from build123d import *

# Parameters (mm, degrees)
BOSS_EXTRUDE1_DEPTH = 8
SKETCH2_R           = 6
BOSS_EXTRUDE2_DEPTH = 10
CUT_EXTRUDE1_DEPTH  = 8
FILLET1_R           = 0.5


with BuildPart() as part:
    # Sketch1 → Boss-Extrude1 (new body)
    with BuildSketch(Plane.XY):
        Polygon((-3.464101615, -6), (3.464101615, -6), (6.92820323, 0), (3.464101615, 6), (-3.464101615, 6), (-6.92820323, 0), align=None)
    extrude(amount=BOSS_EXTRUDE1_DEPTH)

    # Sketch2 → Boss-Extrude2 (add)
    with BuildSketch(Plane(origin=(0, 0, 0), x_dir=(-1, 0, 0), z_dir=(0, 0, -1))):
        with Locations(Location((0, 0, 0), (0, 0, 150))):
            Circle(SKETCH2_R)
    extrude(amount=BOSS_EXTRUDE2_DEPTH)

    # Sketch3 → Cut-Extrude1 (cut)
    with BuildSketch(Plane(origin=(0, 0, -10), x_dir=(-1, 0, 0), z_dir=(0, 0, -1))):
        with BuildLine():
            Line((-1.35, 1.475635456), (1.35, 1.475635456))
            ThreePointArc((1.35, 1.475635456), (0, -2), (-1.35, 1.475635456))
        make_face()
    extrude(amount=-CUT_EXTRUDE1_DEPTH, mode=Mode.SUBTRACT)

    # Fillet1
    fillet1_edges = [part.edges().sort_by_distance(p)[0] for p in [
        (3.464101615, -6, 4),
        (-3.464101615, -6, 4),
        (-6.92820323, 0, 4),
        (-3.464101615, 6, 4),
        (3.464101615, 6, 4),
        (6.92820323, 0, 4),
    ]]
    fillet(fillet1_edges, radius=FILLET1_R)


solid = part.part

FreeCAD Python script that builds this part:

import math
import FreeCAD as App
import Part
import Sketcher
from FreeCAD import Vector
Q = App.Units.Quantity


def edges_at(feature, points):
    """Names of the edges that pass closest to the given points."""
    edges = feature.Shape.Edges
    near = lambda p: min(range(len(edges)), key=lambda i: edges[i].distToShape(Part.Vertex(*p))[0])
    return sorted({f"Edge{near(p) + 1}" for p in points})


def add_polygon(sketch, points):
    """Adds a closed chain of lines whose ends are joined by coincident constraints."""
    first, n = sketch.GeometryCount, len(points)
    for a, b in zip(points, points[1:] + points[:1]):
        sketch.addGeometry(Part.LineSegment(App.Vector(*a, 0), App.Vector(*b, 0)), False)
    for i in range(n):
        sketch.addConstraint(Sketcher.Constraint("Coincident", first + i, 2, first + (i + 1) % n, 1))

doc = App.newDocument("Part")
body = doc.addObject("PartDesign::Body", "Body")

# Sketch on XY plane
sketch1 = doc.addObject("Sketcher::SketchObject", "Sketch")
body.addObject(sketch1)
sketch1.AttachmentSupport = (doc.XY_Plane, [""])
sketch1.MapMode = "FlatFace"
add_polygon(sketch1, [(-3, -6), (3, -6), (7, 0), (3, 6), (-3, 6), (-7, 0)])  # lines 0-5
sketch1.addConstraint(Sketcher.Constraint("Horizontal", 0))
sketch1.addConstraint(Sketcher.Constraint("Horizontal", 3))
sketch1.addConstraint(Sketcher.Constraint("Symmetric", 0, 2, 3, 2, -1, 1))
sketch1.addConstraint(Sketcher.Constraint("Symmetric", 1, 2, 4, 2, -1, 1))
sketch1.addConstraint(Sketcher.Constraint("PointOnObject", 1, 2, -1))
sketch1.addConstraint(Sketcher.Constraint("Parallel", 2, 5))
sketch1.addConstraint(Sketcher.Constraint("Vertical", 0, 2, 2, 2))
sketch1.addConstraint(Sketcher.Constraint("Angle", 1, Q("60 deg")))
sketch1.addConstraint(Sketcher.Constraint("DistanceY", 0, 2, -1, 1, 6.0))
sketch1.addConstraint(Sketcher.Constraint("DistanceX", -1, 1, 0, 2, 3.464102))
pad1 = doc.addObject("PartDesign::Pad", "Pad")
body.addObject(pad1)
pad1.Profile = sketch1
pad1.Length = 8

# Sketch on XY plane
sketch2 = doc.addObject("Sketcher::SketchObject", "Sketch001")
body.addObject(sketch2)
sketch2.AttachmentSupport = (doc.XY_Plane, [""])
sketch2.MapMode = "FlatFace"
sketch2.addGeometry(Part.Circle(Vector(0, 0, 0), Vector(0, 0, 1), 6), False)
sketch2.addConstraint(Sketcher.Constraint("Coincident", 0, 3, -1, 1))
sketch2.addConstraint(Sketcher.Constraint("Diameter", 0, 12.0))
pad2 = doc.addObject("PartDesign::Pad", "Pad001")
body.addObject(pad2)
pad2.Profile = sketch2
pad2.Length = 10
pad2.Reversed = True

# Sketch on XY plane
sketch3 = doc.addObject("Sketcher::SketchObject", "Sketch002")
body.addObject(sketch3)
sketch3.AttachmentSupport = (doc.XY_Plane, [""])
sketch3.MapMode = "FlatFace"
sketch3.AttachmentOffset = App.Placement(Vector(0, 0, -10), App.Rotation())
sketch3.addGeometry(Part.LineSegment(Vector(-1.4, 1.5, 0), Vector(1.4, 1.5, 0)), False)
sketch3.addGeometry(Part.ArcOfCircle(Part.Circle(Vector(0, 0, 0), Vector(0, 0, 1), 2), math.radians(132), math.radians(408)), False)
sketch3.addConstraint(Sketcher.Constraint("Coincident", 0, 1, 1, 1))
sketch3.addConstraint(Sketcher.Constraint("Coincident", 1, 2, 0, 2))
sketch3.addConstraint(Sketcher.Constraint("Horizontal", 0))
sketch3.addConstraint(Sketcher.Constraint("Coincident", 1, 3, -1, 1))
sketch3.addConstraint(Sketcher.Constraint("Radius", 1, 2.0))
sketch3.addConstraint(Sketcher.Constraint("DistanceX", 0, 1, 0, 2, 2.7))
pocket1 = doc.addObject("PartDesign::Pocket", "Pocket")
body.addObject(pocket1)
pocket1.Profile = sketch3
pocket1.Length = 8
pocket1.Reversed = True
doc.recompute()

fillet = doc.addObject("PartDesign::Fillet", "Fillet")
body.addObject(fillet)
fillet.Base = (pocket1, edges_at(pocket1, [
    (3.464, -6, 4),
    (-3.464, -6, 4),
    (-6.928, 0, 4),
    (-3.464, 6, 4),
    (3.464, 6, 4),
    (6.928, 0, 4),
]))
fillet.Radius = 0.5

doc.recompute()
